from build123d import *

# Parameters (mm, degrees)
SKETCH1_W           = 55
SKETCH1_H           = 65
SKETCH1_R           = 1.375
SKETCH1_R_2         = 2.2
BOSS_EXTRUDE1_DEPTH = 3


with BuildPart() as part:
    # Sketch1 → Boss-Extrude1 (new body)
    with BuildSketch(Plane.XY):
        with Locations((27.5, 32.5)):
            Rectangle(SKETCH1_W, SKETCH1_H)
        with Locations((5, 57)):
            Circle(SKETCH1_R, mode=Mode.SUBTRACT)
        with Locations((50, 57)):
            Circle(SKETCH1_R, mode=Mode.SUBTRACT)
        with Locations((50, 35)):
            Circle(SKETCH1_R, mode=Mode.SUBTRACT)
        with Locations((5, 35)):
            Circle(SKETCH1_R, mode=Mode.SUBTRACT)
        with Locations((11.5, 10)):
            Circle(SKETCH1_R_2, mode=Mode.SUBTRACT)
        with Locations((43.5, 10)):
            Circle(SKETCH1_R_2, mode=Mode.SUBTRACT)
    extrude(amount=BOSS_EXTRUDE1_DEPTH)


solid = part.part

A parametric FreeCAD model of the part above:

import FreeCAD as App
import Part
import Sketcher
Q = App.Units.Quantity


def add_polygon(sketch, points):
    """Adds a closed chain of lines whose ends are joined by coincident constraints."""
    first, n = sketch.GeometryCount, len(points)
    for a, b in zip(points, points[1:] + points[:1]):
        sketch.addGeometry(Part.LineSegment(App.Vector(*a, 0), App.Vector(*b, 0)), False)
    for i in range(n):
        sketch.addConstraint(Sketcher.Constraint("Coincident", first + i, 2, first + (i + 1) % n, 1))

doc = App.newDocument("Part")
body = doc.addObject("PartDesign::Body", "Body")

# Sketch on XY plane
sketch1 = body.newObject("Sketcher::SketchObject", "Sketch")
sketch1.AttachmentSupport = (doc.getObject("XY_Plane"), [""])
sketch1.MapMode = "FlatFace"
add_polygon(sketch1, [(0, 65), (0, 0), (55, 0), (55, 65)])  # lines 0-3
sketch1.addGeometry(Part.Circle(App.Vector(11.5, 10, 0), App.Vector(0, 0, 1), 2.2), False)  # 4
sketch1.addGeometry(Part.Circle(App.Vector(43.5, 10, 0), App.Vector(0, 0, 1), 2.2), False)  # 5
sketch1.addGeometry(Part.Circle(App.Vector(5, 35, 0), App.Vector(0, 0, 1), 1.4), False)  # 6
sketch1.addGeometry(Part.Circle(App.Vector(5, 57, 0), App.Vector(0, 0, 1), 1.4), False)  # 7
sketch1.addGeometry(Part.Circle(App.Vector(50, 35, 0), App.Vector(0, 0, 1), 1.4), False)  # 8
sketch1.addGeometry(Part.Circle(App.Vector(50, 57, 0), App.Vector(0, 0, 1), 1.4), False)  # 9
sketch1.addConstraint(Sketcher.Constraint("Vertical", 0))
sketch1.addConstraint(Sketcher.Constraint("Horizontal", 1))
sketch1.addConstraint(Sketcher.Constraint("Vertical", 2))
sketch1.addConstraint(Sketcher.Constraint("Horizontal", 3))
sketch1.addConstraint(Sketcher.Constraint("Coincident", 0, 2, -1, 1))
sketch1.addConstraint(Sketcher.Constraint("Equal", 4, 5))
sketch1.addConstraint(Sketcher.Constraint("Equal", 6, 7))
sketch1.addConstraint(Sketcher.Constraint("Equal", 7, 8))
sketch1.addConstraint(Sketcher.Constraint("Equal", 8, 9))
sketch1.addConstraint(Sketcher.Constraint("Horizontal", 4, 3, 5, 3))
sketch1.addConstraint(Sketcher.Constraint("Horizontal", 6, 3, 8, 3))
sketch1.addConstraint(Sketcher.Constraint("Horizontal", 7, 3, 9, 3))
sketch1.addConstraint(Sketcher.Constraint("Vertical", 6, 3, 7, 3))
sketch1.addConstraint(Sketcher.Constraint("Vertical", 8, 3, 9, 3))
sketch1.addConstraint(Sketcher.Constraint("Diameter", 4, Q("4.4 mm")))
sketch1.addConstraint(Sketcher.Constraint("Diameter", 6, Q("2.75 mm")))
sketch1.addConstraint(Sketcher.Constraint("DistanceX", 1, 1, 1, 2, Q("55 mm")))
sketch1.addConstraint(Sketcher.Constraint("DistanceY", 0, 2, 0, 1, Q("65 mm")))
sketch1.addConstraint(Sketcher.Constraint("DistanceY", -1, 1, 4, 3, Q("10 mm")))
sketch1.addConstraint(Sketcher.Constraint("DistanceX", -1, 1, 6, 3, Q("5 mm")))
sketch1.addConstraint(Sketcher.Constraint("DistanceY", -1, 1, 6, 3, Q("35 mm")))
sketch1.addConstraint(Sketcher.Constraint("DistanceY", -1, 1, 7, 3, Q("57 mm")))
sketch1.addConstraint(Sketcher.Constraint("DistanceX", -1, 1, 8, 3, Q("50 mm")))
sketch1.addConstraint(Sketcher.Constraint("DistanceX", 4, 3, 5, 3, Q("32 mm")))
sketch1.addConstraint(Sketcher.Constraint("DistanceX", -1, 1, 4, 3, Q("11.5 mm")))
pad1 = body.newObject("PartDesign::Pad", "Pad")
pad1.Profile = sketch1
pad1.Length = 3

doc.recompute()
